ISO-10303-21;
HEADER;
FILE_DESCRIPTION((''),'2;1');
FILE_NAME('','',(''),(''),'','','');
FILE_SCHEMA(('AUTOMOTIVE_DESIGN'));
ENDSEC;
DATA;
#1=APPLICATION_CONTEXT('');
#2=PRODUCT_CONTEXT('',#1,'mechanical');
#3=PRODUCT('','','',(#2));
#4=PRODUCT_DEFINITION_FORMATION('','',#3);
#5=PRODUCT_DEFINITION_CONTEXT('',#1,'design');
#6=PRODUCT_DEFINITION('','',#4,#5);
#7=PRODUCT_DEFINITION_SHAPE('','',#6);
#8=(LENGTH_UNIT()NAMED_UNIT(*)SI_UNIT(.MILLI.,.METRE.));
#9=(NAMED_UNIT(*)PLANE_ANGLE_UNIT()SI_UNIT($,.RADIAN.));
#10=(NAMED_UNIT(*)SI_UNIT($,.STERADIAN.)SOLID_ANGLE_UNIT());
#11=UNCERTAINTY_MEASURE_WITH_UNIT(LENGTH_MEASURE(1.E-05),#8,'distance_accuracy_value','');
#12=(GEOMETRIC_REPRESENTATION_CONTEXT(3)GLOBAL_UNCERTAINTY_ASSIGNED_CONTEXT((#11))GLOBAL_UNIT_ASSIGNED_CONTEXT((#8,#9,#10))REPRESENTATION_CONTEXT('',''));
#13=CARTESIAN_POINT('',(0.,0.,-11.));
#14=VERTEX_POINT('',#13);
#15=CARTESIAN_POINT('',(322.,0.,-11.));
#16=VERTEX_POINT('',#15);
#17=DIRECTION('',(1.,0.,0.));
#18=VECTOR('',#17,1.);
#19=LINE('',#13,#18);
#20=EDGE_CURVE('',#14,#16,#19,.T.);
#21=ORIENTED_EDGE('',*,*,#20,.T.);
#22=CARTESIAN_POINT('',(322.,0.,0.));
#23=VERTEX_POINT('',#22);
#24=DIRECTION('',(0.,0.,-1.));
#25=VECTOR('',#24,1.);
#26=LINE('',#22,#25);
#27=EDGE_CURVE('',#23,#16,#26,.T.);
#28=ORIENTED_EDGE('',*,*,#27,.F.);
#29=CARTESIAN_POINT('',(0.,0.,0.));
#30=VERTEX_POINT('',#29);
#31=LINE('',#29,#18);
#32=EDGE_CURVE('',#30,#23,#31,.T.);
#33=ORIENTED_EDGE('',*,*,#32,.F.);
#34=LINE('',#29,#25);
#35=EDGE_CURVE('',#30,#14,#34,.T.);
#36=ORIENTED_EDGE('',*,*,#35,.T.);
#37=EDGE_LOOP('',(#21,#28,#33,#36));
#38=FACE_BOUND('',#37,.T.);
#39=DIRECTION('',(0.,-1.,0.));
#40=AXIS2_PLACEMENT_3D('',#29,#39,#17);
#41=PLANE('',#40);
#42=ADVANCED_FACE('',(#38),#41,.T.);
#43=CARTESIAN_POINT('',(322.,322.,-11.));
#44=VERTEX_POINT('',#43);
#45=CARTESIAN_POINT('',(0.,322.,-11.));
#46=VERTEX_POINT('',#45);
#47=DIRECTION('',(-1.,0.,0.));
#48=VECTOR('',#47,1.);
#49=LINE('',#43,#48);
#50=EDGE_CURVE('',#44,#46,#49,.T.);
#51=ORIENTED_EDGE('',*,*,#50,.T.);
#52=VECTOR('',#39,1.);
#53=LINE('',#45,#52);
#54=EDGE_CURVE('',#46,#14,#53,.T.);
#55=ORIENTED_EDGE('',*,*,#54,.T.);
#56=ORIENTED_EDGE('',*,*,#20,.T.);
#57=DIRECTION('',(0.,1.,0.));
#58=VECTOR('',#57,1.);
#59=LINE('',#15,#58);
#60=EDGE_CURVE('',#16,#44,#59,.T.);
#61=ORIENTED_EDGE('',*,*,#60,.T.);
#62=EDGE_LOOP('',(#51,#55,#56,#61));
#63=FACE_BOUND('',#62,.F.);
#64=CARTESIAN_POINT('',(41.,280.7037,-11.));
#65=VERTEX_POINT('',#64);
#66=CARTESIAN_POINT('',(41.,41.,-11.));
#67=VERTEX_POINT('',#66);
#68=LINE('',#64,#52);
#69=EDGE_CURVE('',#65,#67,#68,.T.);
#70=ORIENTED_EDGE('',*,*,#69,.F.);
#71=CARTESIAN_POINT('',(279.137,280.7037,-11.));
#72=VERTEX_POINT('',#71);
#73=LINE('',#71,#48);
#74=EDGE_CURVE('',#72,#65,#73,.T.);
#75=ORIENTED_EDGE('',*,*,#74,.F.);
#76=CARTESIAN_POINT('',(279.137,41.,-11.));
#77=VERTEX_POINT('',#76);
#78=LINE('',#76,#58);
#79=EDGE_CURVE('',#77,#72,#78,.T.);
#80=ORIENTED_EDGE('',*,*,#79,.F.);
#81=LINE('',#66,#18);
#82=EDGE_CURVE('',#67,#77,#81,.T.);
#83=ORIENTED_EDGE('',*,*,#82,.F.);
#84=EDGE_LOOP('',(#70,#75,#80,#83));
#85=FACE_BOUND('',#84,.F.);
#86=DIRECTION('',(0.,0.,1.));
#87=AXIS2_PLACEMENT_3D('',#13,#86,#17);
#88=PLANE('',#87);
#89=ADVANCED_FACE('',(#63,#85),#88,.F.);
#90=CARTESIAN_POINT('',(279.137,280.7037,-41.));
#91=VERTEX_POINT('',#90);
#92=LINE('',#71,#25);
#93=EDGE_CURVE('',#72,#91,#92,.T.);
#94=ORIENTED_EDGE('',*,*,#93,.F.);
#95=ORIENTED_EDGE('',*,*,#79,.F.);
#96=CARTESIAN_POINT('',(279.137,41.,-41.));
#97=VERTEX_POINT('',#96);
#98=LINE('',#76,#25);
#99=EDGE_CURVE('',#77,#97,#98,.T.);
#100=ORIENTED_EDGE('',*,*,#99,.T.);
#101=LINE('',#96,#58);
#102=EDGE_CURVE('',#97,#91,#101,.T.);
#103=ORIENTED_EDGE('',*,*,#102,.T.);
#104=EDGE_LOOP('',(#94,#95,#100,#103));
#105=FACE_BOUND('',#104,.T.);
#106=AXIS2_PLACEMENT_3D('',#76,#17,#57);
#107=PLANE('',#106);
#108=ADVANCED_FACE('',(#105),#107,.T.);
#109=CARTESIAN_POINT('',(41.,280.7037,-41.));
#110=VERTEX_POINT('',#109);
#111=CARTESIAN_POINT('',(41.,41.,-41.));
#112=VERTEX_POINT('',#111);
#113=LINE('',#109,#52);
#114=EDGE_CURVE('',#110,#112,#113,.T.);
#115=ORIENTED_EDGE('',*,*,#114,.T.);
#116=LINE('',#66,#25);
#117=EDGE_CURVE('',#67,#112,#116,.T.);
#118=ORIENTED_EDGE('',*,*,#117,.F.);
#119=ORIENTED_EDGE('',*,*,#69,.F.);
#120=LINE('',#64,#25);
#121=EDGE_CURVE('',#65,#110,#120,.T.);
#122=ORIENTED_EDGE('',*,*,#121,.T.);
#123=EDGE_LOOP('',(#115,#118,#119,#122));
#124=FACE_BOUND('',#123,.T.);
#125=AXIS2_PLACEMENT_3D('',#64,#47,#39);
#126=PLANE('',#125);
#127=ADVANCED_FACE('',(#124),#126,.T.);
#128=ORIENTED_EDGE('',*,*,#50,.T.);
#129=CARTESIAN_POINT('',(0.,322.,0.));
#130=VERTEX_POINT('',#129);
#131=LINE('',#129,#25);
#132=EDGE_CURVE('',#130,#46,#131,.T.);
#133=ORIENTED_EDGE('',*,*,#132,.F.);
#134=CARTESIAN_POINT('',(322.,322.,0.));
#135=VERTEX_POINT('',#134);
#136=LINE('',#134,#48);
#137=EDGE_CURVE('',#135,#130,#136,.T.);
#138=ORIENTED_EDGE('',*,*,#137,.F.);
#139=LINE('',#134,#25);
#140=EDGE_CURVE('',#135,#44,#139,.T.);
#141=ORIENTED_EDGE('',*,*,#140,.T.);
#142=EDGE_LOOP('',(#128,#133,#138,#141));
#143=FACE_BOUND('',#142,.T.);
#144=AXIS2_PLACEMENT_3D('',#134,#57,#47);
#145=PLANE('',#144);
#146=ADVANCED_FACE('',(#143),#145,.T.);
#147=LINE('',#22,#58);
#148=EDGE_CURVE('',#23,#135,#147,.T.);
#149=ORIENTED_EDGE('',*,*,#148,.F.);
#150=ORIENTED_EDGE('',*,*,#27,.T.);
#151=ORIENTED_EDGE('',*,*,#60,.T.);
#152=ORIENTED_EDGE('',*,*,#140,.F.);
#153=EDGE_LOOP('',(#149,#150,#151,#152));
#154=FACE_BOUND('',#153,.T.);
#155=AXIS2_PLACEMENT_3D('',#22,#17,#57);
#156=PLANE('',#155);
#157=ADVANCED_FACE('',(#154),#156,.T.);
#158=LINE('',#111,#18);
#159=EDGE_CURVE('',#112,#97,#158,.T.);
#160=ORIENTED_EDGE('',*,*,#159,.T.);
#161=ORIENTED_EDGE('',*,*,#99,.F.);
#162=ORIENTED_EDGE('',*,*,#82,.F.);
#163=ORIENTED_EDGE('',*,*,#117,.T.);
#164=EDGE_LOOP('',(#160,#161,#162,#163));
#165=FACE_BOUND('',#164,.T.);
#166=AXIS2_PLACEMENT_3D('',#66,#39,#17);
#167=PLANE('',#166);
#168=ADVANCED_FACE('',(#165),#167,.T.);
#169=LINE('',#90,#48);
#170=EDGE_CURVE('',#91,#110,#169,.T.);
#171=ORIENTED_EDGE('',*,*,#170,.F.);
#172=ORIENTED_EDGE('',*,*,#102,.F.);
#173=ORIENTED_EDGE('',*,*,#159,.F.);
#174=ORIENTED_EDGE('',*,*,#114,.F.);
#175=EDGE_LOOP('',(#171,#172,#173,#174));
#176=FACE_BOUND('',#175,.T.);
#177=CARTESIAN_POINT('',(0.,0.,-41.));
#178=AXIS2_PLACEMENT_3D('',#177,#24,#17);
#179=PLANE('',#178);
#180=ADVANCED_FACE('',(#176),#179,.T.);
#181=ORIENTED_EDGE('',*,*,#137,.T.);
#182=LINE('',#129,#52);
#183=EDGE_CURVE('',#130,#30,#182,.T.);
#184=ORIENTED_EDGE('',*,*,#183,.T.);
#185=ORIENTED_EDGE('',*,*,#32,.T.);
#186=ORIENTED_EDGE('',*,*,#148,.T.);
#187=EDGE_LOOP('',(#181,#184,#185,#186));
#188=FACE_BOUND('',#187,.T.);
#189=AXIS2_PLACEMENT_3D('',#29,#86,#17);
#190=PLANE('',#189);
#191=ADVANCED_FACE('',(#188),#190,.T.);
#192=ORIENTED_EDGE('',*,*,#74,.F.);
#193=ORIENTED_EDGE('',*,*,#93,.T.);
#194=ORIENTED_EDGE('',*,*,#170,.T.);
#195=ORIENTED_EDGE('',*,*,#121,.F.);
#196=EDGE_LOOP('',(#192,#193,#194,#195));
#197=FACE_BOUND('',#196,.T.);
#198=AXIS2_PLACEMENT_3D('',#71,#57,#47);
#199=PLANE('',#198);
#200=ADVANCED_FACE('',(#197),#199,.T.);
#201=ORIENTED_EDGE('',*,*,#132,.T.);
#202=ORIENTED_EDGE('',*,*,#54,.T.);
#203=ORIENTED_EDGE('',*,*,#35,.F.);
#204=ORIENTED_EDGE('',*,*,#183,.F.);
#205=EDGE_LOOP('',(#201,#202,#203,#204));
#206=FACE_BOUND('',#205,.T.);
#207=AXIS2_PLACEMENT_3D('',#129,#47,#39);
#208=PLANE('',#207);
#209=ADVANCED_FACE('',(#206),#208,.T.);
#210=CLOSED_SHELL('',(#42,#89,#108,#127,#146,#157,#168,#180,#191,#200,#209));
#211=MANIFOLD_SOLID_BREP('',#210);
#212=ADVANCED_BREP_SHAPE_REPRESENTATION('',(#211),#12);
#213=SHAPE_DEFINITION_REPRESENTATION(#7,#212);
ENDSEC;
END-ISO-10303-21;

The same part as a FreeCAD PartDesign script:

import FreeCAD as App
import Part
import Sketcher

V = App.Vector
Q = App.Units.Quantity


def add_polygon(sketch, points):
    """Adds a closed chain of lines whose ends are joined by coincident constraints."""
    first, n = sketch.GeometryCount, len(points)
    for a, b in zip(points, points[1:] + points[:1]):
        sketch.addGeometry(Part.LineSegment(App.Vector(*a, 0), App.Vector(*b, 0)), False)
    for i in range(n):
        sketch.addConstraint(Sketcher.Constraint("Coincident", first + i, 2, first + (i + 1) % n, 1))

doc = App.newDocument("Part")
params = doc.addObject("Spreadsheet::Sheet", "Params")
for row, (alias, value) in enumerate([
    ("sketch1_width", "322 mm"),
    ("pad1_length", "11 mm"),
    ("pad2_length", "30 mm"),
], start=1):
    params.set(f"A{row}", alias)
    params.set(f"B{row}", "=" + value)
    params.setAlias(f"B{row}", alias)

body = doc.addObject("PartDesign::Body", "Body")

# Sketch on XY plane
sketch1 = body.newObject("Sketcher::SketchObject", "Sketch")
sketch1.AttachmentSupport = (doc.getObject("XY_Plane"), [""])
sketch1.MapMode = "FlatFace"
add_polygon(sketch1, [(0, 322), (0, 0), (322, 0), (322, 322)])  # lines 0-3
sketch1.addConstraint([
    Sketcher.Constraint("Vertical", 0),
    Sketcher.Constraint("Horizontal", 1),
    Sketcher.Constraint("Vertical", 2),
    Sketcher.Constraint("Horizontal", 3),
    Sketcher.Constraint("Coincident", 0, 2, -1, 1),
    Sketcher.Constraint("Equal", 3, 0),
    Sketcher.Constraint("DistanceX", 1, 1, 1, 2, Q("322 mm")),
])
sketch1.setExpression("Constraints[10]", "Params.sketch1_width")
pad1 = body.newObject("PartDesign::Pad", "Pad")
pad1.Profile = sketch1
pad1.setExpression("Length", "Params.pad1_length")
pad1.Reversed = True

# Sketch on XY plane
sketch2 = body.newObject("Sketcher::SketchObject", "Sketch001")
sketch2.AttachmentSupport = (doc.getObject("XY_Plane"), [""])
sketch2.MapMode = "FlatFace"
sketch2.AttachmentOffset = App.Placement(V(0, 0, -11), App.Rotation())
add_polygon(sketch2, [(279, 41), (41, 41), (41, 281), (279, 281)])  # lines 0-3
sketch2.addConstraint([
    Sketcher.Constraint("Horizontal", 0),
    Sketcher.Constraint("Vertical", 1),
    Sketcher.Constraint("Horizontal", 2),
    Sketcher.Constraint("Vertical", 3),
    Sketcher.Constraint("DistanceX", -1, 1, 0, 2, Q("41 mm")),
    Sketcher.Constraint("DistanceY", -1, 1, 0, 2, Q("41 mm")),
    Sketcher.Constraint("DistanceX", 0, 2, 0, 1, Q("238.137 mm")),
    Sketcher.Constraint("DistanceY", 1, 1, 1, 2, Q("239.7037 mm")),
])
pad2 = body.newObject("PartDesign::Pad", "Pad001")
pad2.Profile = sketch2
pad2.setExpression("Length", "Params.pad2_length")
pad2.Reversed = True

doc.recompute()
